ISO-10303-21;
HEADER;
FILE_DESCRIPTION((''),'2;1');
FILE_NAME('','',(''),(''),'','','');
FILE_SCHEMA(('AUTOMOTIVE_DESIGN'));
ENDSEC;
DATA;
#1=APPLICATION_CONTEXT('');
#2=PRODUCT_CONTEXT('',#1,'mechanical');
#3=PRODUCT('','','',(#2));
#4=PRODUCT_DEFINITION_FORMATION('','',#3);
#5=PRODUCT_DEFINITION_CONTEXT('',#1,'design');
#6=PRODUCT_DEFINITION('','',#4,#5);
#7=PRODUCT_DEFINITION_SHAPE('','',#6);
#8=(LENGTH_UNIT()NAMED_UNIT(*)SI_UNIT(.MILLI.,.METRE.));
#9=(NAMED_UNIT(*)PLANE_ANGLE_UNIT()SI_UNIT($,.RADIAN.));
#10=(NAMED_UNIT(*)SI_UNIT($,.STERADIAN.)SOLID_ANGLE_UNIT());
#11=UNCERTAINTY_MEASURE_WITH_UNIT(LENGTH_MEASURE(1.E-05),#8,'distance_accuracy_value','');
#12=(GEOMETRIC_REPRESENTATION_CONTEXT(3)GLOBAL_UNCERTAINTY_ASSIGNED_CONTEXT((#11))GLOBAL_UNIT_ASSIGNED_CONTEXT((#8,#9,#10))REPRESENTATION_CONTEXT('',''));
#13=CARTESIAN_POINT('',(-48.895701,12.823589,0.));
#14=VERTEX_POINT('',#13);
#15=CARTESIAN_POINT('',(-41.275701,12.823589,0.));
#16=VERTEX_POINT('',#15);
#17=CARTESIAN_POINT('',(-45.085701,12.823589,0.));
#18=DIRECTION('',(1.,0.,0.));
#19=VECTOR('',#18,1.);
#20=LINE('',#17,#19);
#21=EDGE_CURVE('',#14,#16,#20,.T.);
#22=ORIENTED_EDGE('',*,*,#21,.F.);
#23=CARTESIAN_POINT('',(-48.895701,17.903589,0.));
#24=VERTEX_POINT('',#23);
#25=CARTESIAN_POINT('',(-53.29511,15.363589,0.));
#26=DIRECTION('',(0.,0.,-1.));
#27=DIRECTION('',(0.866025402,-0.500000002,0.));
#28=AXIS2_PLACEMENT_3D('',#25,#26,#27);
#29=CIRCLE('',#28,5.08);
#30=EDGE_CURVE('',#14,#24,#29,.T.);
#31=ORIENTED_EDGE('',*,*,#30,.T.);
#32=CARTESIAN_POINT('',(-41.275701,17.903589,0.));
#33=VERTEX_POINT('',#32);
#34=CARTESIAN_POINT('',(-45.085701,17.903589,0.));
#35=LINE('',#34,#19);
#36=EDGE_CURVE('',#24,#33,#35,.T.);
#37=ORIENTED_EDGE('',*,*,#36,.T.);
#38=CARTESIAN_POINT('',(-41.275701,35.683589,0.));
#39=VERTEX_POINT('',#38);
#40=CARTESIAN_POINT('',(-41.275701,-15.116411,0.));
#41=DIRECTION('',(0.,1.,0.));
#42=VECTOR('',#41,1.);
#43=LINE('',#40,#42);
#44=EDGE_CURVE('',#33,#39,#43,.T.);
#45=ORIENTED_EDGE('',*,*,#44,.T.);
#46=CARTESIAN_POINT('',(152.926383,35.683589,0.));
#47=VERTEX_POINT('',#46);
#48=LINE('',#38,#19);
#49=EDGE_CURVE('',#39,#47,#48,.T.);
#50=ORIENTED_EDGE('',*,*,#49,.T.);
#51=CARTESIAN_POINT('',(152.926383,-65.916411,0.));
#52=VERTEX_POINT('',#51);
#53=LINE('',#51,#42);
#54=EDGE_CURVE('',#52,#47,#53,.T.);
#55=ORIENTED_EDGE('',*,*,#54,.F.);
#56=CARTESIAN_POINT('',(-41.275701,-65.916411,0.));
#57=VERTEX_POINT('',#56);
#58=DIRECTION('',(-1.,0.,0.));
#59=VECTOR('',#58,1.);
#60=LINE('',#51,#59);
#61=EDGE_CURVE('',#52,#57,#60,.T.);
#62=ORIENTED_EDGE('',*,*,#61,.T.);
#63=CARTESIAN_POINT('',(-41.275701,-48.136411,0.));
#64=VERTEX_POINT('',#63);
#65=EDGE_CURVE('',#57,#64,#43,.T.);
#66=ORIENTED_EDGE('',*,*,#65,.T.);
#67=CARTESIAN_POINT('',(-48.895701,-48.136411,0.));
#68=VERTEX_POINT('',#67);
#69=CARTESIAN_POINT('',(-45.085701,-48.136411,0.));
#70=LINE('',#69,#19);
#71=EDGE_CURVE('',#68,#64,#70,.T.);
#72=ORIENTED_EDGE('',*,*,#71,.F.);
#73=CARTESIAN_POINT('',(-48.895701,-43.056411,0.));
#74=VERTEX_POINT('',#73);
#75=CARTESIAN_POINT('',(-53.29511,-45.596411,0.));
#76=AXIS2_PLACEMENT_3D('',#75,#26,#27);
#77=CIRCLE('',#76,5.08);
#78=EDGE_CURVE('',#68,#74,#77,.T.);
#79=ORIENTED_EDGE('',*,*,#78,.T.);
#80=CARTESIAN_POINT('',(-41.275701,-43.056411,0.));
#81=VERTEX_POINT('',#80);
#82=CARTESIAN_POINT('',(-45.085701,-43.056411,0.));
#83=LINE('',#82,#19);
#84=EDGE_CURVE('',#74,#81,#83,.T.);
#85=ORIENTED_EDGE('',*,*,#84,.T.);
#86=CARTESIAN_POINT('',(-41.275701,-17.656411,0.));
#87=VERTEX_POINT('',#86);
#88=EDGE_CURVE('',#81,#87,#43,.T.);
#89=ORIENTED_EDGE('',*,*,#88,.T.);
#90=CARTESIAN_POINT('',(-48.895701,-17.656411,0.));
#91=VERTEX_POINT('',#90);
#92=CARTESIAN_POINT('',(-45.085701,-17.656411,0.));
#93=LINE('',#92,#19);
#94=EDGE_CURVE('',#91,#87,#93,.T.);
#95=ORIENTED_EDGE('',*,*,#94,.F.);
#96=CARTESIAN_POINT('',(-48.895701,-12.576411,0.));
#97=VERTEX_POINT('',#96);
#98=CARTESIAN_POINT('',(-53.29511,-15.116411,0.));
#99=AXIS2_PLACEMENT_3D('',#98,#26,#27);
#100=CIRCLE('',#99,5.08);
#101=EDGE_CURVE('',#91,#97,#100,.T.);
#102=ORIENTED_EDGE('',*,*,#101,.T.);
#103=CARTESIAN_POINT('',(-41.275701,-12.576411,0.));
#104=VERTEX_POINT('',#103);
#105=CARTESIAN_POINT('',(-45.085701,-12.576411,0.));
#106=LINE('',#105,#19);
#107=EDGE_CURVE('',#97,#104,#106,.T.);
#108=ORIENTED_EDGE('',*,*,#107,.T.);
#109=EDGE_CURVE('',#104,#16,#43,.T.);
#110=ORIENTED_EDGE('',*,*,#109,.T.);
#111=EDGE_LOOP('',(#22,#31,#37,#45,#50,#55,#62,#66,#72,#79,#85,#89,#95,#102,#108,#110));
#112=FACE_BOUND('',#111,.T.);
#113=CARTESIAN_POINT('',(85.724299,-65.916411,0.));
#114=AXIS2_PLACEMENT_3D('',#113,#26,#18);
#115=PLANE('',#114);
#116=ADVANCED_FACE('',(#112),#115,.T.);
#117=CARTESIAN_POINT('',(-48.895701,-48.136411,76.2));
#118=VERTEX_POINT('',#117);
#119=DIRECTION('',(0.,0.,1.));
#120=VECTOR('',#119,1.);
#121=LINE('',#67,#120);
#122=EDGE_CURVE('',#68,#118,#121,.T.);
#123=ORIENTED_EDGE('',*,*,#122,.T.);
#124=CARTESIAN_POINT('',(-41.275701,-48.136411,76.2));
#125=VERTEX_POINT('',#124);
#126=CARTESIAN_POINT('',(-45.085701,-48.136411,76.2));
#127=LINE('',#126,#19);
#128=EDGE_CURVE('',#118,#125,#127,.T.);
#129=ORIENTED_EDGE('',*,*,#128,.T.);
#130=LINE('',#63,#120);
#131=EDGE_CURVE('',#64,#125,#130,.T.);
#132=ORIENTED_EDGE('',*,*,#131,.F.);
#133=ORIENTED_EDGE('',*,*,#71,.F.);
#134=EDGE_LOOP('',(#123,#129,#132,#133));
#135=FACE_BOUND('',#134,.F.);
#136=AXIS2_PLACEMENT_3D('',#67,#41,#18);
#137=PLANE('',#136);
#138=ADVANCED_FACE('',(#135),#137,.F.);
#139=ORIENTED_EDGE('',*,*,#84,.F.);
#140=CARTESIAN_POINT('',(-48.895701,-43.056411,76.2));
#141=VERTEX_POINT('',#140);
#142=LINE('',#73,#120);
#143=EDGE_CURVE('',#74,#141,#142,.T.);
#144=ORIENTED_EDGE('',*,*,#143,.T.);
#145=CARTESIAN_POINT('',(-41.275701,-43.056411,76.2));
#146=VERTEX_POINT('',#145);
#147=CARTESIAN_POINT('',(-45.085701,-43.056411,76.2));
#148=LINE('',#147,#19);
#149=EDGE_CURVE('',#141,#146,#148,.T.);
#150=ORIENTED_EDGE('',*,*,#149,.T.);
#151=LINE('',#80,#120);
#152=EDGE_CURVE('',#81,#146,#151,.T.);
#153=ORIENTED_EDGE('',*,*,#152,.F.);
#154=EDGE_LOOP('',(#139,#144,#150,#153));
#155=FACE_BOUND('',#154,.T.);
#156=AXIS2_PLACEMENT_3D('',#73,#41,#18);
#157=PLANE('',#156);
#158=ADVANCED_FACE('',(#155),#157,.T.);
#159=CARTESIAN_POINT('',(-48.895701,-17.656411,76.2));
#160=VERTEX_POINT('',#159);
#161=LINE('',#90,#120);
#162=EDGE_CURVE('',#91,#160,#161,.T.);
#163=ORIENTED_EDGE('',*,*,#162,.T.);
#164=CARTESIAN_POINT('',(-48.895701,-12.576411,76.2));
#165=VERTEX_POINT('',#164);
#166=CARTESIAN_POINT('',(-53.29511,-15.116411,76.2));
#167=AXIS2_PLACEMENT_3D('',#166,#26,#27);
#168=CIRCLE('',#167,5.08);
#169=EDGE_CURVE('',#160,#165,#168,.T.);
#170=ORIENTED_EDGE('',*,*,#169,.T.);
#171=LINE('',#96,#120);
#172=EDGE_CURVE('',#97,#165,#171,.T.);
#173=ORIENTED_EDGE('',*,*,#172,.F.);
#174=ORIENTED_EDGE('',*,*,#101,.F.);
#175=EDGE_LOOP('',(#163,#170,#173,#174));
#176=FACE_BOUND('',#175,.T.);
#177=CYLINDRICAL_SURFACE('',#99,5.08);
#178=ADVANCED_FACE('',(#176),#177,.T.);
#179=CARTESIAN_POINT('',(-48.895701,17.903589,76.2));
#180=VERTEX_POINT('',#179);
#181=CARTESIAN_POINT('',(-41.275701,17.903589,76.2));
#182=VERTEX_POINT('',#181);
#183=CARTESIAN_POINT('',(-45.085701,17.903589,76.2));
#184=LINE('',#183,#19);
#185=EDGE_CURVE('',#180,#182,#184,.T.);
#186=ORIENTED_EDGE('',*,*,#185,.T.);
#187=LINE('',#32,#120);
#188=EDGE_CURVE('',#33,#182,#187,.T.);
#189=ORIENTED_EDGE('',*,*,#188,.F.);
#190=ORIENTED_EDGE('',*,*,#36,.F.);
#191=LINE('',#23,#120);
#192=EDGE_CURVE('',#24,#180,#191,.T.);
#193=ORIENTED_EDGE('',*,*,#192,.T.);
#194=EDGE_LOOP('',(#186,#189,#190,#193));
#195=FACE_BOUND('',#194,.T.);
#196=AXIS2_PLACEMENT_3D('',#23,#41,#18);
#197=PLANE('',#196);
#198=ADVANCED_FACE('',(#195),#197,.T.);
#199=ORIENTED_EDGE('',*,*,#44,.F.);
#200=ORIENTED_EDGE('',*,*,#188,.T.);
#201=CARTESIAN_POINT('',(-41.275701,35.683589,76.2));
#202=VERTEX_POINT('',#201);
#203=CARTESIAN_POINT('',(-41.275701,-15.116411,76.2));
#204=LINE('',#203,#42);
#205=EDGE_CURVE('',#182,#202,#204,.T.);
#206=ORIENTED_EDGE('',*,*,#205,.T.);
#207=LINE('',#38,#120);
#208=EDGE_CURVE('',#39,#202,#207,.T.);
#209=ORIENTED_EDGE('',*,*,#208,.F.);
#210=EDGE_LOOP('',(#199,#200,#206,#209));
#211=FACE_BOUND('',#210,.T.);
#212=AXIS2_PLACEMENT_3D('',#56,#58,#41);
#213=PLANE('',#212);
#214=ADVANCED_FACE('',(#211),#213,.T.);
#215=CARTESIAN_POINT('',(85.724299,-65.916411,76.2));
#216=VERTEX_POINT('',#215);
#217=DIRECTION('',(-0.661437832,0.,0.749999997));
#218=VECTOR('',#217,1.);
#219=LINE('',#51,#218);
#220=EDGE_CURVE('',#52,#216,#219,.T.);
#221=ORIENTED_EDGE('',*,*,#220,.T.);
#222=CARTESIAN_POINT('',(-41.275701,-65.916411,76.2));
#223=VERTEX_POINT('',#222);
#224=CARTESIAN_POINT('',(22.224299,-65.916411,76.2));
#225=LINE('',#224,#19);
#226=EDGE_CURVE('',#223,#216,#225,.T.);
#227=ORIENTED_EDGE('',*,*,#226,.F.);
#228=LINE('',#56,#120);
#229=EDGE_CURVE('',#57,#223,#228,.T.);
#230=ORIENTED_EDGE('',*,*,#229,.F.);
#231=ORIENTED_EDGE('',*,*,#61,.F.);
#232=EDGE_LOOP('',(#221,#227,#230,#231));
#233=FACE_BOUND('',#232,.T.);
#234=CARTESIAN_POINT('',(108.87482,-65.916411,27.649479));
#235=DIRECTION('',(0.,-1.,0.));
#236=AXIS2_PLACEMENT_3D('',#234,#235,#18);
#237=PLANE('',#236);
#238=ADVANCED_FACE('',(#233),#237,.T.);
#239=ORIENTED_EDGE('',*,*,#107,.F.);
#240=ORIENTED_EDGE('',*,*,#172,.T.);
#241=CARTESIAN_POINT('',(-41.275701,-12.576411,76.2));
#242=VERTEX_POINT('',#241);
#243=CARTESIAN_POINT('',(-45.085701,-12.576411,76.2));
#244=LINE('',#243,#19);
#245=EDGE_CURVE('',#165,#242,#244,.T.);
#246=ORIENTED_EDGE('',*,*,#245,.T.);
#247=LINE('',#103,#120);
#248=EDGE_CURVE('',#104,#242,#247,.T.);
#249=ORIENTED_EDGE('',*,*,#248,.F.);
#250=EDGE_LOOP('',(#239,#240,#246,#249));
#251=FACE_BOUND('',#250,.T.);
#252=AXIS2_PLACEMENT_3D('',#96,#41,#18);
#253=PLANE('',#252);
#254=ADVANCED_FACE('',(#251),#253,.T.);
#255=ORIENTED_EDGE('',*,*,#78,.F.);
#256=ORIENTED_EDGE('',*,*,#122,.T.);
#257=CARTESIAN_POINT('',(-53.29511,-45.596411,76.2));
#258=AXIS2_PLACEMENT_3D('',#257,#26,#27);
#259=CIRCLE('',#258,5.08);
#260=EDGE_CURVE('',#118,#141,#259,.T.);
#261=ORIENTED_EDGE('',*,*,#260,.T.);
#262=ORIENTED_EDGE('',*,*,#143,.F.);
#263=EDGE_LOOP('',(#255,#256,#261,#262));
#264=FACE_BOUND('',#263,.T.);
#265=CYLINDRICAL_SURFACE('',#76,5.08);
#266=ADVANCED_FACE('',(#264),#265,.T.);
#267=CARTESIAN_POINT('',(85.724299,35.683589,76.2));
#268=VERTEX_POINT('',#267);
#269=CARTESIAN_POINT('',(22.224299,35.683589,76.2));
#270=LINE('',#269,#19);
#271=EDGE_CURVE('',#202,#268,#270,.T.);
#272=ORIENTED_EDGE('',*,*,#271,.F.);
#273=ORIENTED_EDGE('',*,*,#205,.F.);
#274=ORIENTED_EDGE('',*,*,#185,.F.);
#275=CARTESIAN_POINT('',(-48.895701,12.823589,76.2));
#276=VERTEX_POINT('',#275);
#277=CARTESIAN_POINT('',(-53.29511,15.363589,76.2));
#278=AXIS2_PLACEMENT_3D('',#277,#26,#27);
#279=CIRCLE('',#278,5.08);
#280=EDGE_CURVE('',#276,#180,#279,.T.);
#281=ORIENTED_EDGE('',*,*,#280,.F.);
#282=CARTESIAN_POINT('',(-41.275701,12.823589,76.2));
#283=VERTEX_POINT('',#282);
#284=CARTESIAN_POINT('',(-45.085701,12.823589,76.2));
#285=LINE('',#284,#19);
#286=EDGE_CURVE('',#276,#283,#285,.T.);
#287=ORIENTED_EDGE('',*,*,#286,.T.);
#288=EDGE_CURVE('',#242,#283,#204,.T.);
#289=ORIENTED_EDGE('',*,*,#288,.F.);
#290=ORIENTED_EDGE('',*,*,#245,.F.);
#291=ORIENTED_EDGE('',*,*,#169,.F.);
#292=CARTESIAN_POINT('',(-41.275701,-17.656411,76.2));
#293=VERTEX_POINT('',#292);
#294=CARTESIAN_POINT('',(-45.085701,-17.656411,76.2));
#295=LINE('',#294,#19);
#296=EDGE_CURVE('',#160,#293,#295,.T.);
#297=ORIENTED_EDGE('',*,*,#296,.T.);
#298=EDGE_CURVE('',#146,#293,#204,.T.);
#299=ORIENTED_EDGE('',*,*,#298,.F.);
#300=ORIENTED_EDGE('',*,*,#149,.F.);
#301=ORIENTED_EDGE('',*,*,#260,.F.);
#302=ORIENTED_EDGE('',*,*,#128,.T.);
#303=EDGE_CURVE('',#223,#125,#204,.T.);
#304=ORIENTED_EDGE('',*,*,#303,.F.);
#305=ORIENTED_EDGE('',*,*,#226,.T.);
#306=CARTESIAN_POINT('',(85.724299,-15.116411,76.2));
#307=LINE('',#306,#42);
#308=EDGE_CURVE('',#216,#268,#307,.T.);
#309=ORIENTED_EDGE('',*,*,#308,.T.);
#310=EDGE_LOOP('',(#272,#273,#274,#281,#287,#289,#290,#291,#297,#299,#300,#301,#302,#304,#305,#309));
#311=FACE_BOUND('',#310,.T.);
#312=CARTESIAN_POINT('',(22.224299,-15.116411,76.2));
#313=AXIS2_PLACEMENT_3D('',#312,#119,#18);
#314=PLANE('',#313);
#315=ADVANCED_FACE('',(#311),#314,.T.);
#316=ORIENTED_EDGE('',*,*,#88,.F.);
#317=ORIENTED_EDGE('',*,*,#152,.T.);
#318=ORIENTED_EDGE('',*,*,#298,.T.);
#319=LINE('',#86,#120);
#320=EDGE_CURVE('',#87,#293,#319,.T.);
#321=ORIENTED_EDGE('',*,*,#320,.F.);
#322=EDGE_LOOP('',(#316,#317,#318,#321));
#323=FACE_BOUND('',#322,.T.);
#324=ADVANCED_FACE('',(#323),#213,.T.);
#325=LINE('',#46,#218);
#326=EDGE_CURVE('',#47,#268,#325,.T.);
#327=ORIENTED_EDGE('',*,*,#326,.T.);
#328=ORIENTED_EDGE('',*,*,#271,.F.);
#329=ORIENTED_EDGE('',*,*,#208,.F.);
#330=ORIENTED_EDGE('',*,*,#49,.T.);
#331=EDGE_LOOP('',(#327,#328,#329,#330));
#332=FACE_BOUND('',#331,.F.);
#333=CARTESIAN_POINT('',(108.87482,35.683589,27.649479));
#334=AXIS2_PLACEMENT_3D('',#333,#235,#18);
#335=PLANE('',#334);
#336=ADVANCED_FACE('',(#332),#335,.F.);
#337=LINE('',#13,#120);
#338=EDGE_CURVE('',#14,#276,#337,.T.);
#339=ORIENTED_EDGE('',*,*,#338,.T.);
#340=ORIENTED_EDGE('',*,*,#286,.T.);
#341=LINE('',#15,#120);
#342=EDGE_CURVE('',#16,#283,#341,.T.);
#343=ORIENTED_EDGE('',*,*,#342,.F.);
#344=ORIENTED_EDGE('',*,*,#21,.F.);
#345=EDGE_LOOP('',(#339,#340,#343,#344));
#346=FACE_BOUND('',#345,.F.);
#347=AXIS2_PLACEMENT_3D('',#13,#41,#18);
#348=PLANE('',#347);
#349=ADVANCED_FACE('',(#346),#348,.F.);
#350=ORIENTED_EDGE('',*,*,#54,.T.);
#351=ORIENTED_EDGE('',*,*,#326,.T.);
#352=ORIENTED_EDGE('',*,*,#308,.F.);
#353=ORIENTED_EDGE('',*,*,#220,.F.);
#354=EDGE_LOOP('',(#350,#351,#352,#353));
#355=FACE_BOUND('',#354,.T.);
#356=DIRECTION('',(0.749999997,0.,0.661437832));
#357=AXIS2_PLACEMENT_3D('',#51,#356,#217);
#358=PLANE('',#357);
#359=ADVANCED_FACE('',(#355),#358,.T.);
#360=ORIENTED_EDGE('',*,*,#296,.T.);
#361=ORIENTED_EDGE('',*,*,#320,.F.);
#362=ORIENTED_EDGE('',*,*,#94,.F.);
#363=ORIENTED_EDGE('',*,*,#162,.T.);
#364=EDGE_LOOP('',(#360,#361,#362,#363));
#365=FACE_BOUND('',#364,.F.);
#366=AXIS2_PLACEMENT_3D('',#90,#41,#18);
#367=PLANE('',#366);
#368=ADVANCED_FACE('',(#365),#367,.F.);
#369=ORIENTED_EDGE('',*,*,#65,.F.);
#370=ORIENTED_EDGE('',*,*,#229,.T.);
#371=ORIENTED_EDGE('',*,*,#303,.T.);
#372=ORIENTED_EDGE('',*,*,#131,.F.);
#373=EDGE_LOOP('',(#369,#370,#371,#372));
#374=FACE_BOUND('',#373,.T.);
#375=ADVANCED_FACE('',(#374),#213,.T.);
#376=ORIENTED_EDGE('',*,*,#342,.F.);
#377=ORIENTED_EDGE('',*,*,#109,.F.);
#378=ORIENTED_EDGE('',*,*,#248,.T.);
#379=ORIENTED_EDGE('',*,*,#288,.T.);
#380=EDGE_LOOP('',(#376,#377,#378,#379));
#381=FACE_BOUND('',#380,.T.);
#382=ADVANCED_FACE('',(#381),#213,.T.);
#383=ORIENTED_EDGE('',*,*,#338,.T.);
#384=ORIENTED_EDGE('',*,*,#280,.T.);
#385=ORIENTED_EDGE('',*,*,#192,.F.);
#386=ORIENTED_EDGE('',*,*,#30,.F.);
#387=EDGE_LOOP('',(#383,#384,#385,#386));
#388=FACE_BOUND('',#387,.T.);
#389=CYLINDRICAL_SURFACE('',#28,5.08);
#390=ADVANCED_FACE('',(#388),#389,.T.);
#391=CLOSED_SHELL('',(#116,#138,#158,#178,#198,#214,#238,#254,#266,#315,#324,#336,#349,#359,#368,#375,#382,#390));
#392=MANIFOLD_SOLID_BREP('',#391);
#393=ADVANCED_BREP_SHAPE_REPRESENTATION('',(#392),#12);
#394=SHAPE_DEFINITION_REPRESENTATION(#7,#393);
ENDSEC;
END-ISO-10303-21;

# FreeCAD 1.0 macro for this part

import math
import FreeCAD as App
import Part
import Sketcher
from FreeCAD import Vector
Q = App.Units.Quantity


def add_polygon(sketch, points):
    """Adds a closed chain of lines whose ends are joined by coincident constraints."""
    first, n = sketch.GeometryCount, len(points)
    for a, b in zip(points, points[1:] + points[:1]):
        sketch.addGeometry(Part.LineSegment(App.Vector(*a, 0), App.Vector(*b, 0)), False)
    for i in range(n):
        sketch.addConstraint(Sketcher.Constraint("Coincident", first + i, 2, first + (i + 1) % n, 1))

doc = App.newDocument("Part")
params = doc.addObject("Spreadsheet::Sheet", "Params")
for row, (alias, value) in enumerate([
    ("sketch1_width", "5 in"),
    ("sketch1_height", "4 in"),
    ("pad1_length", "3 in"),
    ("sketch2_height", "3 in"),
    ("sketch2_length", "4 in"),
    ("pad2_length", "4 in"),
    ("sketch3_radius", "0.2 in"),
    ("sketch3_width", "0.3 in"),
    ("sketch3_height", "0.2 in"),
    ("pad3_length", "3 in"),
], start=1):
    params.set(f"A{row}", alias)
    params.set(f"B{row}", "=" + value)
    params.setAlias(f"B{row}", alias)

body = doc.addObject("PartDesign::Body", "Body")

# Sketch on XY plane
sketch1 = body.newObject("Sketcher::SketchObject", "Sketch")
sketch1.AttachmentSupport = (doc.getObject("XY_Plane"), [""])
sketch1.MapMode = "FlatFace"
add_polygon(sketch1, [(-41, 36), (-41, -66), (86, -66), (86, 36)])  # lines 0-3
sketch1.addConstraint([
    Sketcher.Constraint("Vertical", 0),
    Sketcher.Constraint("Horizontal", 1),
    Sketcher.Constraint("Vertical", 2),
    Sketcher.Constraint("Horizontal", 3),
    Sketcher.Constraint("DistanceX", 1, 1, 1, 2, Q("5 in")),
    Sketcher.Constraint("DistanceY", 0, 2, 0, 1, Q("4 in")),
    Sketcher.Constraint("DistanceX", 0, 2, -1, 1, Q("41.275701 mm")),
    Sketcher.Constraint("DistanceY", 0, 2, -1, 1, Q("65.916411 mm")),
])
sketch1.setExpression("Constraints[8]", "Params.sketch1_width")
sketch1.setExpression("Constraints[9]", "Params.sketch1_height")
pad1 = body.newObject("PartDesign::Pad", "Pad")
pad1.Profile = sketch1
pad1.setExpression("Length", "Params.pad1_length")

# Sketch on XZ plane
sketch2 = body.newObject("Sketcher::SketchObject", "Sketch001")
sketch2.AttachmentSupport = (doc.getObject("XZ_Plane"), [""])
sketch2.MapMode = "FlatFace"
sketch2.AttachmentOffset = App.Placement(Vector(0, 0, 65.916411), App.Rotation())
add_polygon(sketch2, [(153, 0), (86, 76), (86, 0)])  # lines 0-2
sketch2.addConstraint([
    Sketcher.Constraint("Vertical", 1),
    Sketcher.Constraint("Horizontal", 2),
    Sketcher.Constraint("PointOnObject", 1, 2, -1),
    Sketcher.Constraint("DistanceY", 1, 2, 1, 1, Q("3 in")),
    Sketcher.Constraint("Distance", 0, Q("4 in")),
    Sketcher.Constraint("DistanceX", -1, 1, 0, 2, Q("85.724299 mm")),
])
sketch2.setExpression("Constraints[6]", "Params.sketch2_height")
sketch2.setExpression("Constraints[7]", "Params.sketch2_length")
pad2 = body.newObject("PartDesign::Pad", "Pad001")
pad2.Profile = sketch2
pad2.setExpression("Length", "Params.pad2_length")
pad2.Reversed = True

# Sketch on XY plane
sketch3 = body.newObject("Sketcher::SketchObject", "Sketch002")
sketch3.AttachmentSupport = (doc.getObject("XY_Plane"), [""])
sketch3.MapMode = "FlatFace"
sketch3.addGeometry([
    Part.LineSegment(Vector(-49, 18, 0), Vector(-41, 18, 0)),  # 0
    Part.LineSegment(Vector(-41, 18, 0), Vector(-41, 13, 0)),  # 1
    Part.LineSegment(Vector(-41, 13, 0), Vector(-49, 13, 0)),  # 2
    Part.ArcOfCircle(Part.Circle(Vector(-53, 15, 0), Vector(0, 0, 1), 5), math.radians(30), math.radians(330)),  # 3
    Part.ArcOfCircle(Part.Circle(Vector(-53, -46, 0), Vector(0, 0, 1), 5), math.radians(30), math.radians(330)),  # 4
    Part.LineSegment(Vector(-49, -43, 0), Vector(-41, -43, 0)),  # 5
    Part.LineSegment(Vector(-41, -43, 0), Vector(-41, -48, 0)),  # 6
    Part.LineSegment(Vector(-41, -48, 0), Vector(-49, -48, 0)),  # 7
    Part.ArcOfCircle(Part.Circle(Vector(-53, -15, 0), Vector(0, 0, 1), 5), math.radians(30), math.radians(330)),  # 8
    Part.LineSegment(Vector(-49, -13, 0), Vector(-41, -13, 0)),  # 9
    Part.LineSegment(Vector(-41, -13, 0), Vector(-41, -18, 0)),  # 10
    Part.LineSegment(Vector(-41, -18, 0), Vector(-49, -18, 0)),  # 11
], False)
sketch3.addConstraint([
    Sketcher.Constraint("Coincident", 0, 2, 1, 1),
    Sketcher.Constraint("Coincident", 1, 2, 2, 1),
    Sketcher.Constraint("Coincident", 2, 2, 3, 2),
    Sketcher.Constraint("Coincident", 3, 1, 0, 1),
    Sketcher.Constraint("Coincident", 4, 1, 5, 1),
    Sketcher.Constraint("Coincident", 5, 2, 6, 1),
    Sketcher.Constraint("Coincident", 6, 2, 7, 1),
    Sketcher.Constraint("Coincident", 7, 2, 4, 2),
    Sketcher.Constraint("Coincident", 8, 1, 9, 1),
    Sketcher.Constraint("Coincident", 9, 2, 10, 1),
    Sketcher.Constraint("Coincident", 10, 2, 11, 1),
    Sketcher.Constraint("Coincident", 11, 2, 8, 2),
    Sketcher.Constraint("Horizontal", 0),
    Sketcher.Constraint("Vertical", 1),
    Sketcher.Constraint("Horizontal", 2),
    Sketcher.Constraint("Horizontal", 5),
    Sketcher.Constraint("Vertical", 6),
    Sketcher.Constraint("Horizontal", 7),
    Sketcher.Constraint("Horizontal", 9),
    Sketcher.Constraint("Vertical", 10),
    Sketcher.Constraint("Horizontal", 11),
    Sketcher.Constraint("Equal", 3, 4),
    Sketcher.Constraint("Equal", 4, 8),
    Sketcher.Constraint("Vertical", 3, 3, 4, 3),
    Sketcher.Constraint("Vertical", 4, 3, 8, 3),
    Sketcher.Constraint("Vertical", 2, 2, 3, 1),
    Sketcher.Constraint("Vertical", 3, 1, 4, 1),
    Sketcher.Constraint("Vertical", 1, 2, 5, 2),
    Sketcher.Constraint("Vertical", 4, 1, 7, 2),
    Sketcher.Constraint("Vertical", 7, 2, 8, 1),
    Sketcher.Constraint("Vertical", 6, 2, 9, 2),
    Sketcher.Constraint("Vertical", 8, 1, 11, 2),
    Sketcher.Constraint("Radius", 3, Q("0.2 in")),
    Sketcher.Constraint("DistanceX", 0, 1, 0, 2, Q("0.3 in")),
    Sketcher.Constraint("DistanceY", 1, 2, 1, 1, Q("0.2 in")),
    Sketcher.Constraint("DistanceY", 8, 1, 2, 2, Q("1 in")),
    Sketcher.Constraint("DistanceY", 5, 2, 10, 2, Q("1 in")),
    Sketcher.Constraint("DistanceX", 0, 2, -1, 1, Q("41.275701 mm")),
    Sketcher.Constraint("DistanceY", -1, 1, 3, 3, Q("15.363589 mm")),
])
sketch3.setExpression("Constraints[32]", "Params.sketch3_radius")
sketch3.setExpression("Constraints[33]", "Params.sketch3_width")
sketch3.setExpression("Constraints[34]", "Params.sketch3_height")
pad3 = body.newObject("PartDesign::Pad", "Pad002")
pad3.Profile = sketch3
pad3.setExpression("Length", "Params.pad3_length")

doc.recompute()
